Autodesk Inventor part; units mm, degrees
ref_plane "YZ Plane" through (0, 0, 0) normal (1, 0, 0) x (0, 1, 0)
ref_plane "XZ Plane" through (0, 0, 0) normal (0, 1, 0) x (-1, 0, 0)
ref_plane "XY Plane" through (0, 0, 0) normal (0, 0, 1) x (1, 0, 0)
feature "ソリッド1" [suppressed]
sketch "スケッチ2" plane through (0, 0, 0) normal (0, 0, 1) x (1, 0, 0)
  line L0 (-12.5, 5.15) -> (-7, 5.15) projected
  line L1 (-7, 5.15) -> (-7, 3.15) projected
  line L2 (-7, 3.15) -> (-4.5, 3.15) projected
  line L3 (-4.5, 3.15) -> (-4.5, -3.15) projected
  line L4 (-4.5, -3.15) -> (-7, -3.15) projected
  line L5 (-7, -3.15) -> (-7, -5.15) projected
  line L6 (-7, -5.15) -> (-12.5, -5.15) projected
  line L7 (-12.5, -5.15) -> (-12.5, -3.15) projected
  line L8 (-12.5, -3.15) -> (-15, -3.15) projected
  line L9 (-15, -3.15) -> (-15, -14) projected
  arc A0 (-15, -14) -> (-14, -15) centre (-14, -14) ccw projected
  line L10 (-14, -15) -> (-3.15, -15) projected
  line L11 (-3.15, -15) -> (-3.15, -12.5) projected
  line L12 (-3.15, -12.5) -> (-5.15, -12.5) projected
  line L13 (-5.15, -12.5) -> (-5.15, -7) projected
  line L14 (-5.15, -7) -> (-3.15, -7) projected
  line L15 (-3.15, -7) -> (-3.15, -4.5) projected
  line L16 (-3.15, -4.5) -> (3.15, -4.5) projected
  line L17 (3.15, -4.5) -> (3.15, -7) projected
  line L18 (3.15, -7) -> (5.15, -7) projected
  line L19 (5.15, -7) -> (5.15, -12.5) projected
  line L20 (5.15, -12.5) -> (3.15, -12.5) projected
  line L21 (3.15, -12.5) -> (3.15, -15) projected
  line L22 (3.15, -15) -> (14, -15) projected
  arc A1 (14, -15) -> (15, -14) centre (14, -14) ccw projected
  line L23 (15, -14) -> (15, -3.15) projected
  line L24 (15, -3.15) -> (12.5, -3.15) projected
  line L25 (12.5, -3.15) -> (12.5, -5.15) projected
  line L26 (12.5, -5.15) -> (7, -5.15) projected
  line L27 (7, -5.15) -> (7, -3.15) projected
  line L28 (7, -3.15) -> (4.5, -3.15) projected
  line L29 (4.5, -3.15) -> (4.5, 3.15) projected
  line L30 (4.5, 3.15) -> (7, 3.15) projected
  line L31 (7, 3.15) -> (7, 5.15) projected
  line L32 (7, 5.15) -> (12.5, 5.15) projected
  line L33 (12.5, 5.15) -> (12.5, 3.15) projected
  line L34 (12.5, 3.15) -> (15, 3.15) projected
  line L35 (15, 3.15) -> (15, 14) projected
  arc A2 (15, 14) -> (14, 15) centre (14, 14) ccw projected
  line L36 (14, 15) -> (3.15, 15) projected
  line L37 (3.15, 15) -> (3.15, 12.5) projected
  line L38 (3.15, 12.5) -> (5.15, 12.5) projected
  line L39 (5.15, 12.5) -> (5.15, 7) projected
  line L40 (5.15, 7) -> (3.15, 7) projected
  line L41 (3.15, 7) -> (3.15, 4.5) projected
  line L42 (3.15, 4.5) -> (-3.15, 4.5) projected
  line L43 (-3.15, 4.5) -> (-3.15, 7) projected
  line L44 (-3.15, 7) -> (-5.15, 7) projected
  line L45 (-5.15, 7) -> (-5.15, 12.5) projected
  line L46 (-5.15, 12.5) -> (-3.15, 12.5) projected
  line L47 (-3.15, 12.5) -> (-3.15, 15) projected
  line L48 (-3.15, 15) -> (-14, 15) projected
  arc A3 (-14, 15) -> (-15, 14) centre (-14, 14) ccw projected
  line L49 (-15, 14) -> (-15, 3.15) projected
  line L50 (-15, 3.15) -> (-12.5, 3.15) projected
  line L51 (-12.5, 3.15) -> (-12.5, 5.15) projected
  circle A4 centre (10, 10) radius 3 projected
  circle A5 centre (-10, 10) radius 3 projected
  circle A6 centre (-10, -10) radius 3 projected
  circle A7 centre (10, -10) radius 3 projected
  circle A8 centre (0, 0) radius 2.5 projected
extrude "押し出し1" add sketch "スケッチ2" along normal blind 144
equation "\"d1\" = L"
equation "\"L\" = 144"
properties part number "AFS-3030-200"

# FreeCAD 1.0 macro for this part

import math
import FreeCAD as App
import Part
import Sketcher
from FreeCAD import Vector
Q = App.Units.Quantity

doc = App.newDocument("Part")
body = doc.addObject("PartDesign::Body", "Body")

sketch1 = body.newObject("Sketcher::SketchObject", "Sketch")
sketch1.AttachmentSupport = (doc.getObject("XY_Plane"), [""])
sketch1.MapMode = "FlatFace"
sketch1.addGeometry([
    Part.LineSegment(Vector(-12.5, 3.15, 0), Vector(-12.5, 5.15, 0)),
    Part.LineSegment(Vector(-12.5, 5.15, 0), Vector(-7, 5.15, 0)),
    Part.LineSegment(Vector(-7, 5.15, 0), Vector(-7, 3.15, 0)),
    Part.LineSegment(Vector(-7, 3.15, 0), Vector(-4.5, 3.15, 0)),
    Part.LineSegment(Vector(-4.5, 3.15, 0), Vector(-4.5, -3.15, 0)),
    Part.LineSegment(Vector(-4.5, -3.15, 0), Vector(-7, -3.15, 0)),
    Part.LineSegment(Vector(-7, -3.15, 0), Vector(-7, -5.15, 0)),
    Part.LineSegment(Vector(-7, -5.15, 0), Vector(-12.5, -5.15, 0)),
    Part.LineSegment(Vector(-12.5, -5.15, 0), Vector(-12.5, -3.15, 0)),
    Part.LineSegment(Vector(-12.5, -3.15, 0), Vector(-15, -3.15, 0)),
    Part.LineSegment(Vector(-15, -3.15, 0), Vector(-15, -14, 0)),
    Part.ArcOfCircle(Part.Circle(Vector(-14, -14, 0), Vector(0, 0, 1), 1), math.radians(180), math.radians(270)),
    Part.LineSegment(Vector(-14, -15, 0), Vector(-3.15, -15, 0)),
    Part.LineSegment(Vector(-3.15, -15, 0), Vector(-3.15, -12.5, 0)),
    Part.LineSegment(Vector(-3.15, -12.5, 0), Vector(-5.15, -12.5, 0)),
    Part.LineSegment(Vector(-5.15, -12.5, 0), Vector(-5.15, -7, 0)),
    Part.LineSegment(Vector(-5.15, -7, 0), Vector(-3.15, -7, 0)),
    Part.LineSegment(Vector(-3.15, -7, 0), Vector(-3.15, -4.5, 0)),
    Part.LineSegment(Vector(-3.15, -4.5, 0), Vector(3.15, -4.5, 0)),
    Part.LineSegment(Vector(3.15, -4.5, 0), Vector(3.15, -7, 0)),
    Part.LineSegment(Vector(3.15, -7, 0), Vector(5.15, -7, 0)),
    Part.LineSegment(Vector(5.15, -7, 0), Vector(5.15, -12.5, 0)),
    Part.LineSegment(Vector(5.15, -12.5, 0), Vector(3.15, -12.5, 0)),
    Part.LineSegment(Vector(3.15, -12.5, 0), Vector(3.15, -15, 0)),
    Part.LineSegment(Vector(3.15, -15, 0), Vector(14, -15, 0)),
    Part.ArcOfCircle(Part.Circle(Vector(14, -14, 0), Vector(0, 0, 1), 1), math.radians(-90), math.radians(0)),
    Part.LineSegment(Vector(15, -14, 0), Vector(15, -3.15, 0)),
    Part.LineSegment(Vector(15, -3.15, 0), Vector(12.5, -3.15, 0)),
    Part.LineSegment(Vector(12.5, -3.15, 0), Vector(12.5, -5.15, 0)),
    Part.LineSegment(Vector(12.5, -5.15, 0), Vector(7, -5.15, 0)),
    Part.LineSegment(Vector(7, -5.15, 0), Vector(7, -3.15, 0)),
    Part.LineSegment(Vector(7, -3.15, 0), Vector(4.5, -3.15, 0)),
    Part.LineSegment(Vector(4.5, -3.15, 0), Vector(4.5, 3.15, 0)),
    Part.LineSegment(Vector(4.5, 3.15, 0), Vector(7, 3.15, 0)),
    Part.LineSegment(Vector(7, 3.15, 0), Vector(7, 5.15, 0)),
    Part.LineSegment(Vector(7, 5.15, 0), Vector(12.5, 5.15, 0)),
    Part.LineSegment(Vector(12.5, 5.15, 0), Vector(12.5, 3.15, 0)),
    Part.LineSegment(Vector(12.5, 3.15, 0), Vector(15, 3.15, 0)),
    Part.LineSegment(Vector(15, 3.15, 0), Vector(15, 14, 0)),
    Part.ArcOfCircle(Part.Circle(Vector(14, 14, 0), Vector(0, 0, 1), 1), math.radians(0), math.radians(90)),
    Part.LineSegment(Vector(14, 15, 0), Vector(3.15, 15, 0)),
    Part.LineSegment(Vector(3.15, 15, 0), Vector(3.15, 12.5, 0)),
    Part.LineSegment(Vector(3.15, 12.5, 0), Vector(5.15, 12.5, 0)),
    Part.LineSegment(Vector(5.15, 12.5, 0), Vector(5.15, 7, 0)),
    Part.LineSegment(Vector(5.15, 7, 0), Vector(3.15, 7, 0)),
    Part.LineSegment(Vector(3.15, 7, 0), Vector(3.15, 4.5, 0)),
    Part.LineSegment(Vector(3.15, 4.5, 0), Vector(-3.15, 4.5, 0)),
    Part.LineSegment(Vector(-3.15, 4.5, 0), Vector(-3.15, 7, 0)),
    Part.LineSegment(Vector(-3.15, 7, 0), Vector(-5.15, 7, 0)),
    Part.LineSegment(Vector(-5.15, 7, 0), Vector(-5.15, 12.5, 0)),
    Part.LineSegment(Vector(-5.15, 12.5, 0), Vector(-3.15, 12.5, 0)),
    Part.LineSegment(Vector(-3.15, 12.5, 0), Vector(-3.15, 15, 0)),
    Part.LineSegment(Vector(-3.15, 15, 0), Vector(-14, 15, 0)),
    Part.ArcOfCircle(Part.Circle(Vector(-14, 14, 0), Vector(0, 0, 1), 1), math.radians(90), math.radians(180)),
    Part.LineSegment(Vector(-15, 14, 0), Vector(-15, 3.15, 0)),
    Part.LineSegment(Vector(-15, 3.15, 0), Vector(-12.5, 3.15, 0)),
    Part.Circle(Vector(-10, -10, 0), Vector(0, 0, 1), 3),
    Part.Circle(Vector(10, -10, 0), Vector(0, 0, 1), 3),
    Part.Circle(Vector(-10, 10, 0), Vector(0, 0, 1), 3),
    Part.Circle(Vector(0, 0, 0), Vector(0, 0, 1), 2.5),
    Part.Circle(Vector(10, 10, 0), Vector(0, 0, 1), 3),
], False)
sketch1.addConstraint([
    Sketcher.Constraint("Coincident", 0, 2, 1, 1),
    Sketcher.Constraint("Coincident", 1, 2, 2, 1),
    Sketcher.Constraint("Coincident", 2, 2, 3, 1),
    Sketcher.Constraint("Coincident", 3, 2, 4, 1),
    Sketcher.Constraint("Coincident", 4, 2, 5, 1),
    Sketcher.Constraint("Coincident", 5, 2, 6, 1),
    Sketcher.Constraint("Coincident", 6, 2, 7, 1),
    Sketcher.Constraint("Coincident", 7, 2, 8, 1),
    Sketcher.Constraint("Coincident", 8, 2, 9, 1),
    Sketcher.Constraint("Coincident", 9, 2, 10, 1),
    Sketcher.Constraint("Tangent", 10, 2, 11, 1),
    Sketcher.Constraint("Tangent", 11, 2, 12, 1),
    Sketcher.Constraint("Coincident", 12, 2, 13, 1),
    Sketcher.Constraint("Coincident", 13, 2, 14, 1),
    Sketcher.Constraint("Coincident", 14, 2, 15, 1),
    Sketcher.Constraint("Coincident", 15, 2, 16, 1),
    Sketcher.Constraint("Coincident", 16, 2, 17, 1),
    Sketcher.Constraint("Coincident", 17, 2, 18, 1),
    Sketcher.Constraint("Coincident", 18, 2, 19, 1),
    Sketcher.Constraint("Coincident", 19, 2, 20, 1),
    Sketcher.Constraint("Coincident", 20, 2, 21, 1),
    Sketcher.Constraint("Coincident", 21, 2, 22, 1),
    Sketcher.Constraint("Coincident", 22, 2, 23, 1),
    Sketcher.Constraint("Coincident", 23, 2, 24, 1),
    Sketcher.Constraint("Tangent", 24, 2, 25, 1),
    Sketcher.Constraint("Tangent", 25, 2, 26, 1),
    Sketcher.Constraint("Coincident", 26, 2, 27, 1),
    Sketcher.Constraint("Coincident", 27, 2, 28, 1),
    Sketcher.Constraint("Coincident", 28, 2, 29, 1),
    Sketcher.Constraint("Coincident", 29, 2, 30, 1),
    Sketcher.Constraint("Coincident", 30, 2, 31, 1),
    Sketcher.Constraint("Coincident", 31, 2, 32, 1),
    Sketcher.Constraint("Coincident", 32, 2, 33, 1),
    Sketcher.Constraint("Coincident", 33, 2, 34, 1),
    Sketcher.Constraint("Coincident", 34, 2, 35, 1),
    Sketcher.Constraint("Coincident", 35, 2, 36, 1),
    Sketcher.Constraint("Coincident", 36, 2, 37, 1),
    Sketcher.Constraint("Coincident", 37, 2, 38, 1),
    Sketcher.Constraint("Tangent", 38, 2, 39, 1),
    Sketcher.Constraint("Tangent", 39, 2, 40, 1),
    Sketcher.Constraint("Coincident", 40, 2, 41, 1),
    Sketcher.Constraint("Coincident", 41, 2, 42, 1),
    Sketcher.Constraint("Coincident", 42, 2, 43, 1),
    Sketcher.Constraint("Coincident", 43, 2, 44, 1),
    Sketcher.Constraint("Coincident", 44, 2, 45, 1),
    Sketcher.Constraint("Coincident", 45, 2, 46, 1),
    Sketcher.Constraint("Coincident", 46, 2, 47, 1),
    Sketcher.Constraint("Coincident", 47, 2, 48, 1),
    Sketcher.Constraint("Coincident", 48, 2, 49, 1),
    Sketcher.Constraint("Coincident", 49, 2, 50, 1),
    Sketcher.Constraint("Coincident", 50, 2, 51, 1),
    Sketcher.Constraint("Coincident", 51, 2, 52, 1),
    Sketcher.Constraint("Tangent", 52, 2, 53, 1),
    Sketcher.Constraint("Tangent", 53, 2, 54, 1),
    Sketcher.Constraint("Coincident", 54, 2, 55, 1),
    Sketcher.Constraint("Coincident", 55, 2, 0, 1),
    Sketcher.Constraint("Vertical", 0),
    Sketcher.Constraint("Horizontal", 1),
    Sketcher.Constraint("Vertical", 2),
    Sketcher.Constraint("Horizontal", 3),
    Sketcher.Constraint("Vertical", 4),
    Sketcher.Constraint("Horizontal", 5),
    Sketcher.Constraint("Vertical", 6),
    Sketcher.Constraint("Horizontal", 7),
    Sketcher.Constraint("Vertical", 8),
    Sketcher.Constraint("Horizontal", 9),
    Sketcher.Constraint("Vertical", 10),
    Sketcher.Constraint("Horizontal", 12),
    Sketcher.Constraint("Vertical", 13),
    Sketcher.Constraint("Horizontal", 14),
    Sketcher.Constraint("Vertical", 15),
    Sketcher.Constraint("Horizontal", 16),
    Sketcher.Constraint("Vertical", 17),
    Sketcher.Constraint("Horizontal", 18),
    Sketcher.Constraint("Vertical", 19),
    Sketcher.Constraint("Horizontal", 20),
    Sketcher.Constraint("Vertical", 21),
    Sketcher.Constraint("Horizontal", 22),
    Sketcher.Constraint("Vertical", 23),
    Sketcher.Constraint("Horizontal", 24),
    Sketcher.Constraint("Vertical", 26),
    Sketcher.Constraint("Horizontal", 27),
    Sketcher.Constraint("Vertical", 28),
    Sketcher.Constraint("Horizontal", 29),
    Sketcher.Constraint("Vertical", 30),
    Sketcher.Constraint("Horizontal", 31),
    Sketcher.Constraint("Vertical", 32),
    Sketcher.Constraint("Horizontal", 33),
    Sketcher.Constraint("Vertical", 34),
    Sketcher.Constraint("Horizontal", 35),
    Sketcher.Constraint("Vertical", 36),
    Sketcher.Constraint("Horizontal", 37),
    Sketcher.Constraint("Vertical", 38),
    Sketcher.Constraint("Horizontal", 40),
    Sketcher.Constraint("Vertical", 41),
    Sketcher.Constraint("Horizontal", 42),
    Sketcher.Constraint("Vertical", 43),
    Sketcher.Constraint("Horizontal", 44),
    Sketcher.Constraint("Vertical", 45),
    Sketcher.Constraint("Horizontal", 46),
    Sketcher.Constraint("Vertical", 47),
    Sketcher.Constraint("Horizontal", 48),
    Sketcher.Constraint("Vertical", 49),
    Sketcher.Constraint("Horizontal", 50),
    Sketcher.Constraint("Vertical", 51),
    Sketcher.Constraint("Horizontal", 52),
    Sketcher.Constraint("Vertical", 54),
    Sketcher.Constraint("Horizontal", 55),
    Sketcher.Constraint("Coincident", 59, 3, -1, 1),
    Sketcher.Constraint("Equal", 11, 25),
    Sketcher.Constraint("Equal", 25, 39),
    Sketcher.Constraint("Equal", 39, 53),
    Sketcher.Constraint("Equal", 56, 57),
    Sketcher.Constraint("Equal", 57, 58),
    Sketcher.Constraint("Equal", 58, 60),
    Sketcher.Constraint("Symmetric", 11, 3, 39, 3, -1, 1),
    Sketcher.Constraint("Symmetric", 25, 3, 53, 3, -1, 1),
    Sketcher.Constraint("Symmetric", 57, 3, 58, 3, -1, 1),
    Sketcher.Constraint("Symmetric", 56, 3, 60, 3, -1, 1),
    Sketcher.Constraint("Symmetric", 0, 2, 28, 2, -1, 1),
    Sketcher.Constraint("Symmetric", 2, 2, 30, 2, -1, 1),
    Sketcher.Constraint("Symmetric", 4, 2, 32, 2, -1, 1),
    Sketcher.Constraint("Symmetric", 6, 2, 34, 2, -1, 1),
    Sketcher.Constraint("Symmetric", 8, 2, 36, 2, -1, 1),
    Sketcher.Constraint("Symmetric", 13, 2, 41, 2, -1, 1),
    Sketcher.Constraint("Symmetric", 15, 2, 43, 2, -1, 1),
    Sketcher.Constraint("Symmetric", 17, 2, 45, 2, -1, 1),
    Sketcher.Constraint("Symmetric", 19, 2, 47, 2, -1, 1),
    Sketcher.Constraint("Symmetric", 21, 2, 49, 2, -1, 1),
    Sketcher.Constraint("Symmetric", 11, 3, 25, 3, -2),
    Sketcher.Constraint("Symmetric", 56, 3, 57, 3, -2),
    Sketcher.Constraint("Symmetric", 16, 2, 19, 2, -2),
    Sketcher.Constraint("Symmetric", 14, 2, 21, 2, -2),
    Sketcher.Constraint("Symmetric", 8, 2, 27, 2, -2),
    Sketcher.Constraint("Symmetric", 6, 2, 29, 2, -2),
    Sketcher.Constraint("Horizontal", 5, 2, 8, 2),
    Sketcher.Constraint("Horizontal", 27, 2, 30, 2),
    Sketcher.Constraint("Horizontal", 37, 2, 54, 2),
    Sketcher.Constraint("Vertical", 13, 2, 16, 2),
    Sketcher.Constraint("Vertical", 19, 2, 22, 2),
    Sketcher.Constraint("Vertical", 47, 2, 50, 2),
    Sketcher.Constraint("Equal", 5, 9),
    Sketcher.Constraint("Equal", 50, 0),
    Sketcher.Constraint("Equal", 46, 4),
    Sketcher.Constraint("Equal", 52, 10),
    Sketcher.Constraint("Equal", 55, 13),
    Sketcher.Constraint("Equal", 35, 15),
    Sketcher.Constraint("Equal", 13, 17),
    Sketcher.Constraint("Diameter", 56, Q("6 mm")),
    Sketcher.Constraint("Diameter", 59, Q("5 mm")),
    Sketcher.Constraint("Radius", 11, Q("1 mm")),
    Sketcher.Constraint("DistanceX", 14, 2, 14, 1, Q("2 mm")),
    Sketcher.Constraint("DistanceX", 1, 1, 1, 2, Q("5.5 mm")),
    Sketcher.Constraint("DistanceX", 3, 1, 3, 2, Q("2.5 mm")),
    Sketcher.Constraint("DistanceX", 18, 1, 18, 2, Q("6.3 mm")),
    Sketcher.Constraint("DistanceX", 11, 3, -1, 1, Q("14 mm")),
    Sketcher.Constraint("DistanceX", 56, 3, -1, 1, Q("10 mm")),
    Sketcher.Constraint("DistanceY", 56, 3, -1, 1, Q("10 mm")),
])
pad1 = body.newObject("PartDesign::Pad", "Pad")
pad1.Profile = sketch1
pad1.Length = 144

doc.recompute()
